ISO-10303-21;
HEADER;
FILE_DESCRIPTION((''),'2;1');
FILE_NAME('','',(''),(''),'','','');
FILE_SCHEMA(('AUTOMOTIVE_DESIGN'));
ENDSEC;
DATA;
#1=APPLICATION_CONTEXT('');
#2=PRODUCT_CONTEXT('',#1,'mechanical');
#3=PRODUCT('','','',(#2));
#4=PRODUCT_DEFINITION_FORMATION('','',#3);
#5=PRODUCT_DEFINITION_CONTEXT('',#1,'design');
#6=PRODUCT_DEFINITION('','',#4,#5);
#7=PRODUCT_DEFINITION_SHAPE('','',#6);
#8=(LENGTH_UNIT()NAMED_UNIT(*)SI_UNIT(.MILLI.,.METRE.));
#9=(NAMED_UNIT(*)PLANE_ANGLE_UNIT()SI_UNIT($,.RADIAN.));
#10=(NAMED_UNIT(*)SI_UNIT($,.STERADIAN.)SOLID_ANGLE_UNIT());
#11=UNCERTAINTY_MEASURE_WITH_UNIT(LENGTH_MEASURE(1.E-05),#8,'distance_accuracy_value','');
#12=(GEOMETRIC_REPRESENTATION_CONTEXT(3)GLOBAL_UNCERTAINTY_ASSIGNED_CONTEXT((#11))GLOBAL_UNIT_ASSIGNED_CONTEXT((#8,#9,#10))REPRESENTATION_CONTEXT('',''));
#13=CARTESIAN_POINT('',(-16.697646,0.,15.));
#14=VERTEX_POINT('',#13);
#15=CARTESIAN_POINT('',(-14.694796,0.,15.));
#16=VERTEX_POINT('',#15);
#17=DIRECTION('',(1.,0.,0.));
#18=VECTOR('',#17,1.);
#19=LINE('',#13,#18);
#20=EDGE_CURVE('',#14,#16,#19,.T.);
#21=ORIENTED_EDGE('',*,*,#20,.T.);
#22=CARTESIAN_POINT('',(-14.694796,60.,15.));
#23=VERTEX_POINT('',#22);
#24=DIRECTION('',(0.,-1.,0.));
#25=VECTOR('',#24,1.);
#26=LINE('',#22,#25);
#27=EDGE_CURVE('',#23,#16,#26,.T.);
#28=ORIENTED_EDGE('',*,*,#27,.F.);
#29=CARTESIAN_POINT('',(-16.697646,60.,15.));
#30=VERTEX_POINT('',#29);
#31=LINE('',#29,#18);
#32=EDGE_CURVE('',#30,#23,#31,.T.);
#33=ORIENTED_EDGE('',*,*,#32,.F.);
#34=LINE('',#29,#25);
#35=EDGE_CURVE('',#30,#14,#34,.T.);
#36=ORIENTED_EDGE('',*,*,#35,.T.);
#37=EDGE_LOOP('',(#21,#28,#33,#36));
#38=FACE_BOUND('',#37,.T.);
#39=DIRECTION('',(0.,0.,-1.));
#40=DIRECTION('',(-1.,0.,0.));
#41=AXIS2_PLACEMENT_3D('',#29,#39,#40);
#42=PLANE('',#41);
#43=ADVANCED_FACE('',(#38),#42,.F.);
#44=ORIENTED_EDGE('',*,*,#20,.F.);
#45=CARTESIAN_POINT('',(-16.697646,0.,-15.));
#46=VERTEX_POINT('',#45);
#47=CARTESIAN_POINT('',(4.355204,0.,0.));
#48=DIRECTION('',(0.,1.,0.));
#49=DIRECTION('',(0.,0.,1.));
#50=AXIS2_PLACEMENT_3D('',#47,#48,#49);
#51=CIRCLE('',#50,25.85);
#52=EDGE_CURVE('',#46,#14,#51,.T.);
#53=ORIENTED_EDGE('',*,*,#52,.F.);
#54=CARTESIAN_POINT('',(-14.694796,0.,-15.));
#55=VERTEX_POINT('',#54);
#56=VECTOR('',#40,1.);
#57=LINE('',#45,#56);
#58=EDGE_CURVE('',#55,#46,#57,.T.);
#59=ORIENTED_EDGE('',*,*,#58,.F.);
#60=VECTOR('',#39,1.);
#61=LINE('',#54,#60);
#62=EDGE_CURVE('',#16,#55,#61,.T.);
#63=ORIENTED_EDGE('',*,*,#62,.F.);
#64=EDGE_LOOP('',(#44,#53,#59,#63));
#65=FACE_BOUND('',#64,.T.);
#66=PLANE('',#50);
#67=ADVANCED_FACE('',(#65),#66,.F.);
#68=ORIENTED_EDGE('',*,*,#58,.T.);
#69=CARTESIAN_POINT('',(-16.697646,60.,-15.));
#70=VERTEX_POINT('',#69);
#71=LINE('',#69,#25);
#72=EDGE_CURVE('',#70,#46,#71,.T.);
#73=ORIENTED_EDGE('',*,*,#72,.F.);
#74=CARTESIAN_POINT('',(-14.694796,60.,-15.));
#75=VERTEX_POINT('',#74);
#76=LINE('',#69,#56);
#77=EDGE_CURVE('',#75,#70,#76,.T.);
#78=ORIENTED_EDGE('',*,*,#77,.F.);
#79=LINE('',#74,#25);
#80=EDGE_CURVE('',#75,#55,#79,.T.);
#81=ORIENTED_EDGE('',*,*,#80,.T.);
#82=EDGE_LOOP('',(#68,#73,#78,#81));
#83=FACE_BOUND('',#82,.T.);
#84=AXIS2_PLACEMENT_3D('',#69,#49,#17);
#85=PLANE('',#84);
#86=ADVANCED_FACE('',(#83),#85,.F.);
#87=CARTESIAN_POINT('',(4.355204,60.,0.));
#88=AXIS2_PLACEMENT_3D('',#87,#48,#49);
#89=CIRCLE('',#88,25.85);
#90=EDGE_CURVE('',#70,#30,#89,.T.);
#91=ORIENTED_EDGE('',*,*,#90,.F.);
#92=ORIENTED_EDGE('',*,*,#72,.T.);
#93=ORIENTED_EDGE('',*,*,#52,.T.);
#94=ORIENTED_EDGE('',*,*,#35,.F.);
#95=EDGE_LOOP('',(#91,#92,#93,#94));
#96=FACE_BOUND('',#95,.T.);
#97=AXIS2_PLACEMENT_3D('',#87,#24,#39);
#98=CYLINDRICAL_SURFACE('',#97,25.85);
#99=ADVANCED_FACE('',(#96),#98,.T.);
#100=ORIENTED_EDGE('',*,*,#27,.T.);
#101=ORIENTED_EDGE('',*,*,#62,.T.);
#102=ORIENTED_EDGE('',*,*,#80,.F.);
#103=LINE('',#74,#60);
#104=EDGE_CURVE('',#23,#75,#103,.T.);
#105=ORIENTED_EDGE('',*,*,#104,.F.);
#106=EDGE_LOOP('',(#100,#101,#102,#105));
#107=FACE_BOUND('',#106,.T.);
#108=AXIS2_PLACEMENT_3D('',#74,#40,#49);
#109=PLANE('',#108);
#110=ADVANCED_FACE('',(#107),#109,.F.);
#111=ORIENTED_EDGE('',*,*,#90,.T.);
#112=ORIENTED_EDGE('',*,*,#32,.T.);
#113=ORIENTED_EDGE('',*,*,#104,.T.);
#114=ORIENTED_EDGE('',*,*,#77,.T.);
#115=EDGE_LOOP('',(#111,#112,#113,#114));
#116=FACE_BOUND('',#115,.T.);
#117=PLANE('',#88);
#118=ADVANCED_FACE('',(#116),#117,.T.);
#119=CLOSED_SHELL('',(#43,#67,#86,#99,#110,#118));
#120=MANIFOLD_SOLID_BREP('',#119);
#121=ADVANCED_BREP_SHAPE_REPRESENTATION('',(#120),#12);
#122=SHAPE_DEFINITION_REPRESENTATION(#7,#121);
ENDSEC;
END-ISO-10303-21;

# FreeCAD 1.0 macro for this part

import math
import FreeCAD as App
import Part
import Sketcher
Q = App.Units.Quantity

doc = App.newDocument("Part")
body = doc.addObject("PartDesign::Body", "Body")

# Sketch on XZ plane
sketch1 = body.newObject("Sketcher::SketchObject", "Sketch")
sketch1.AttachmentSupport = (doc.getObject("XZ_Plane"), [""])
sketch1.MapMode = "FlatFace"
sketch1.addGeometry([
    Part.LineSegment(App.Vector(-14.7, -15, 0), App.Vector(-16.7, -15, 0)),
    Part.ArcOfCircle(Part.Circle(App.Vector(4.4, 0, 0), App.Vector(0, 0, 1), 25.8), math.radians(145), math.radians(215)),
    Part.LineSegment(App.Vector(-16.7, 15, 0), App.Vector(-14.7, 15, 0)),
    Part.LineSegment(App.Vector(-14.7, 15, 0), App.Vector(-14.7, -15, 0)),
], False)
sketch1.addConstraint([
    Sketcher.Constraint("Coincident", 0, 2, 1, 2),
    Sketcher.Constraint("Coincident", 1, 1, 2, 1),
    Sketcher.Constraint("Coincident", 2, 2, 3, 1),
    Sketcher.Constraint("Coincident", 3, 2, 0, 1),
    Sketcher.Constraint("Horizontal", 0),
    Sketcher.Constraint("Horizontal", 2),
    Sketcher.Constraint("Vertical", 3),
    Sketcher.Constraint("Symmetric", 0, 2, 1, 1, -1),
    Sketcher.Constraint("DistanceY", 3, 2, 3, 1, Q("30 mm")),
    Sketcher.Constraint("Radius", 1, Q("25.85 mm")),
    Sketcher.Constraint("DistanceX", 2, 2, 1, 3, Q("19.05 mm")),
    Sketcher.Constraint("DistanceX", -1, 1, 1, 3, Q("4.355204 mm")),
])
pad1 = body.newObject("PartDesign::Pad", "Pad")
pad1.Profile = sketch1
pad1.Length = 60
pad1.Reversed = True

doc.recompute()
